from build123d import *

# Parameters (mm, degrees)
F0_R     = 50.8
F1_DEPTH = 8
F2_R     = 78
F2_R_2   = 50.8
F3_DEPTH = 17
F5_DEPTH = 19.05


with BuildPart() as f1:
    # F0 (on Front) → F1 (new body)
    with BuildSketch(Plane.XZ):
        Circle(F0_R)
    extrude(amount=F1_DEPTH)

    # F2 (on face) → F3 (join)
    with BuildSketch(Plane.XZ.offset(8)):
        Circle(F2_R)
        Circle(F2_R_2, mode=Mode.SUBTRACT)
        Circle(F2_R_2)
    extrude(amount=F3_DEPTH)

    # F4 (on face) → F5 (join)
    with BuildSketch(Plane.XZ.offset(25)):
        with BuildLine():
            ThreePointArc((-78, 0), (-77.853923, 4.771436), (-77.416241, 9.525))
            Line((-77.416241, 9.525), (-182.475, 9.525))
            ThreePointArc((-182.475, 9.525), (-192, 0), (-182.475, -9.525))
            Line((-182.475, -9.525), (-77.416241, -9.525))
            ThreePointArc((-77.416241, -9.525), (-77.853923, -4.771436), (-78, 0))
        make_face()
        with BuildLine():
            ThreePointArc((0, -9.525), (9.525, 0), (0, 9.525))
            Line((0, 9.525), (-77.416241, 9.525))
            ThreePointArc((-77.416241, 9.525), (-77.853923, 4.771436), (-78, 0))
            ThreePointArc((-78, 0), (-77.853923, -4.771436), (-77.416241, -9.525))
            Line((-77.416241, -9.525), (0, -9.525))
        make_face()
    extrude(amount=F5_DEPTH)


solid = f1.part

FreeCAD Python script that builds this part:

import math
import FreeCAD as App
import Part
import Sketcher
from FreeCAD import Vector
Q = App.Units.Quantity

doc = App.newDocument("Part")
params = doc.addObject("Spreadsheet::Sheet", "Params")
for row, (alias, value) in enumerate([
    ("sketch1_diameter", "101.6 mm"),
    ("pad1_length", "8 mm"),
    ("sketch2_diameter", "156 mm"),
    ("pad2_length", "17 mm"),
    ("pad3_length", "19.05 mm"),
], start=1):
    params.set(f"A{row}", alias)
    params.set(f"B{row}", "=" + value)
    params.setAlias(f"B{row}", alias)

body = doc.addObject("PartDesign::Body", "Body")

sketch1 = body.newObject("Sketcher::SketchObject", "Sketch")
sketch1.AttachmentSupport = (doc.getObject("XZ_Plane"), [""])
sketch1.MapMode = "FlatFace"
sketch1.addGeometry(Part.Circle(Vector(0, 0, 0), Vector(0, 0, 1), 51), False)
sketch1.addConstraint(Sketcher.Constraint("Coincident", 0, 3, -1, 1))
sketch1.addConstraint(Sketcher.Constraint("Diameter", 0, Q("101.6 mm")))
sketch1.setExpression("Constraints[1]", "Params.sketch1_diameter")
pad1 = body.newObject("PartDesign::Pad", "Pad")
pad1.Profile = sketch1
pad1.setExpression("Length", "Params.pad1_length")

sketch2 = body.newObject("Sketcher::SketchObject", "Sketch001")
sketch2.AttachmentSupport = (doc.getObject("XZ_Plane"), [""])
sketch2.MapMode = "FlatFace"
sketch2.AttachmentOffset = App.Placement(Vector(0, 0, 8), App.Rotation())
sketch2.addGeometry(Part.Circle(Vector(0, 0, 0), Vector(0, 0, 1), 78), False)
sketch2.addConstraint(Sketcher.Constraint("Coincident", 0, 3, -1, 1))
sketch2.addConstraint(Sketcher.Constraint("Diameter", 0, Q("156 mm")))
sketch2.setExpression("Constraints[1]", "Params.sketch2_diameter")
pad2 = body.newObject("PartDesign::Pad", "Pad001")
pad2.Profile = sketch2
pad2.setExpression("Length", "Params.pad2_length")

sketch3 = body.newObject("Sketcher::SketchObject", "Sketch002")
sketch3.AttachmentSupport = (doc.getObject("XZ_Plane"), [""])
sketch3.MapMode = "FlatFace"
sketch3.AttachmentOffset = App.Placement(Vector(0, 0, 25), App.Rotation())
sketch3.addGeometry(Part.ArcOfCircle(Part.Circle(Vector(-182, 0, 0), Vector(0, 0, 1), 10), math.radians(90), math.radians(270)), False)
sketch3.addGeometry(Part.LineSegment(Vector(-182, -10, 0), Vector(0, -10, 0)), False)
sketch3.addGeometry(Part.ArcOfCircle(Part.Circle(Vector(0, 0, 0), Vector(0, 0, 1), 10), math.radians(-90), math.radians(90)), False)
sketch3.addGeometry(Part.LineSegment(Vector(0, 10, 0), Vector(-182, 10, 0)), False)
sketch3.addConstraint(Sketcher.Constraint("Tangent", 0, 2, 1, 1))
sketch3.addConstraint(Sketcher.Constraint("Tangent", 1, 2, 2, 1))
sketch3.addConstraint(Sketcher.Constraint("Tangent", 2, 2, 3, 1))
sketch3.addConstraint(Sketcher.Constraint("Tangent", 3, 2, 0, 1))
sketch3.addConstraint(Sketcher.Constraint("Horizontal", 1))
sketch3.addConstraint(Sketcher.Constraint("Horizontal", 3))
sketch3.addConstraint(Sketcher.Constraint("Coincident", 2, 3, -1, 1))
sketch3.addConstraint(Sketcher.Constraint("Radius", 0, Q("9.525 mm")))
sketch3.addConstraint(Sketcher.Constraint("DistanceX", 1, 1, 1, 2, Q("182.475 mm")))
pad3 = body.newObject("PartDesign::Pad", "Pad002")
pad3.Profile = sketch3
pad3.setExpression("Length", "Params.pad3_length")

doc.recompute()
